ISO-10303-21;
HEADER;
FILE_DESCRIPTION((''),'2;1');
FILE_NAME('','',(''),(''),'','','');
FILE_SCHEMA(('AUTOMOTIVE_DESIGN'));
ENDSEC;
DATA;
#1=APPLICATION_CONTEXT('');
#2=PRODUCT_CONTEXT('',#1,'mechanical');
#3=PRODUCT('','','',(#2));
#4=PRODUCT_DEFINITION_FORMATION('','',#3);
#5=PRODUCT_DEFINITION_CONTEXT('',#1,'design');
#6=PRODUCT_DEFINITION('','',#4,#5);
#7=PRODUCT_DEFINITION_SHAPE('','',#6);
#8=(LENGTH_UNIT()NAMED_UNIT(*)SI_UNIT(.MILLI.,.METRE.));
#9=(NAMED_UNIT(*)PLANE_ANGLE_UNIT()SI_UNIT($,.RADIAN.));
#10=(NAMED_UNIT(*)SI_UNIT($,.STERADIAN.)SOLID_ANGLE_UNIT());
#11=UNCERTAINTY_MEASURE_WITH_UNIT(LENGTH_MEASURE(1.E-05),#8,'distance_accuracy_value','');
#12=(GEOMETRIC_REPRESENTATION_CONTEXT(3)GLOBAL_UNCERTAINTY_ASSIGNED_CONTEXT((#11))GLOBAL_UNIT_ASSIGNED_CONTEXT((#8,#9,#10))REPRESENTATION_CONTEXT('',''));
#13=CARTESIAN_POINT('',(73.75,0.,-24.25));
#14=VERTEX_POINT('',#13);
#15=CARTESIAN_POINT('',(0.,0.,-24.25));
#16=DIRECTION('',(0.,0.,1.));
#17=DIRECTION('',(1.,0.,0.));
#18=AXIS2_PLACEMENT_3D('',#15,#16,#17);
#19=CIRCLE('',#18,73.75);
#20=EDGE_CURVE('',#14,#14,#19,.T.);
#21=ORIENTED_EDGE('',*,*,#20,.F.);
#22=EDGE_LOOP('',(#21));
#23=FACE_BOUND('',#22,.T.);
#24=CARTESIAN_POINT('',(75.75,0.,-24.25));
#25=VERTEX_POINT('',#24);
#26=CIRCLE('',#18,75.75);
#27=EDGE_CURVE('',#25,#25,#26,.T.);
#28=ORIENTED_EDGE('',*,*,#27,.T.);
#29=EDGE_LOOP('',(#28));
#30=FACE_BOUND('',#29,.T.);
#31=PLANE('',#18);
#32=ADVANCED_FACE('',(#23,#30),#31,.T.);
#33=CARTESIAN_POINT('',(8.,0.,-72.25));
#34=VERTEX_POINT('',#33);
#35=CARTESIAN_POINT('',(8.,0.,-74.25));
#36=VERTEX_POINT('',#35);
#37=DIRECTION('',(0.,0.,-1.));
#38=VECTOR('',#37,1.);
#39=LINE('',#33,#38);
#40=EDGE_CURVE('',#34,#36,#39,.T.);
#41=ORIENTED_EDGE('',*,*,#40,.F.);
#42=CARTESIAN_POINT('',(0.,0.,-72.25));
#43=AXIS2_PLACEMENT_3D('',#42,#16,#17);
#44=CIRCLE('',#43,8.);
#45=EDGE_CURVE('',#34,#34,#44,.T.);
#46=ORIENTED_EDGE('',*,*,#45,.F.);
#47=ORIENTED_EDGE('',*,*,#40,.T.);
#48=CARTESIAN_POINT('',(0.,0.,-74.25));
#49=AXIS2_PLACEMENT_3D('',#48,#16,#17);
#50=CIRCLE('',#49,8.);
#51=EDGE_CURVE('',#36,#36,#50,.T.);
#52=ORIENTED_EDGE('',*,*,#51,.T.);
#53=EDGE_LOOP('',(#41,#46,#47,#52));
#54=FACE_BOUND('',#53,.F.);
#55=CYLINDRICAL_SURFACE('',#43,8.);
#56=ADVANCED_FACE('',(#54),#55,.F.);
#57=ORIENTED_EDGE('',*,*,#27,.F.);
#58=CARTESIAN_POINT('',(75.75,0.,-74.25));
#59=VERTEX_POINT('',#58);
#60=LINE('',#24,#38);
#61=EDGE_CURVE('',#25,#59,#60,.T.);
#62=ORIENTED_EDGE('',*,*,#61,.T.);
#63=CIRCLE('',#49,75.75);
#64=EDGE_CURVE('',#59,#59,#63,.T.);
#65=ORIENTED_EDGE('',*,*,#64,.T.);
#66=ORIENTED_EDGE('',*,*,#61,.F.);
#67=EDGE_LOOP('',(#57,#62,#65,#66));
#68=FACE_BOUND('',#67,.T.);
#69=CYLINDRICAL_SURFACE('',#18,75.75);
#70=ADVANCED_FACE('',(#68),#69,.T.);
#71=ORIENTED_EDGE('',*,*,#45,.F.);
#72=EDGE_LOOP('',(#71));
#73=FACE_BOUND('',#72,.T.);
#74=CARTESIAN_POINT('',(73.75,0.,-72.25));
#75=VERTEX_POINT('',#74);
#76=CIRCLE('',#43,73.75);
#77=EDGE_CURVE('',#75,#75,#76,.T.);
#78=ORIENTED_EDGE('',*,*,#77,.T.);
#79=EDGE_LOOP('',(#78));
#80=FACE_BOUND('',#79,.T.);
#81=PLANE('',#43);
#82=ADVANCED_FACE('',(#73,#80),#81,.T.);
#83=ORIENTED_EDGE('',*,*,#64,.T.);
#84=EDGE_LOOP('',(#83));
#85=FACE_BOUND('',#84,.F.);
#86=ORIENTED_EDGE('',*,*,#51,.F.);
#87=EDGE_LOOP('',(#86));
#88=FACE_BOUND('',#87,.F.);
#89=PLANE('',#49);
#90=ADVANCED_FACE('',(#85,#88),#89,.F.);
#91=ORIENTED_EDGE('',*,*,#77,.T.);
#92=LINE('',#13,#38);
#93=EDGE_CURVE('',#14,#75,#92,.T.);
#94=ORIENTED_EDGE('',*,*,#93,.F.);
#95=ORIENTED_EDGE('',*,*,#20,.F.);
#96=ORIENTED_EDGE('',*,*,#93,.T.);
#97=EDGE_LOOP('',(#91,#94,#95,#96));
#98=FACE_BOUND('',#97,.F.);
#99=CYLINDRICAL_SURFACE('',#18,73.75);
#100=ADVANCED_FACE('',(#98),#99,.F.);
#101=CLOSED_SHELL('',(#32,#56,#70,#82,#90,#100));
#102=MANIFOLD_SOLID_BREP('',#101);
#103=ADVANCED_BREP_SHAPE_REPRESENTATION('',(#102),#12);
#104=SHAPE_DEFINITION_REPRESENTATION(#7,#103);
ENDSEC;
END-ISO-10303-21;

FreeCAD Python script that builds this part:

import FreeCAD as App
import Part
import Sketcher

V = App.Vector
Q = App.Units.Quantity


def faces_at(feature, points):
    """Names of the faces that lie closest to the given points."""
    faces = feature.Shape.Faces
    near = lambda p: min(range(len(faces)), key=lambda i: faces[i].distToShape(Part.Vertex(*p))[0])
    return sorted({f"Face{near(p) + 1}" for p in points})

doc = App.newDocument("Part")
body = doc.addObject("PartDesign::Body", "Body")

# Sketch on XY plane
sketch1 = body.newObject("Sketcher::SketchObject", "Sketch")
sketch1.AttachmentSupport = (doc.getObject("XY_Plane"), [""])
sketch1.MapMode = "FlatFace"
sketch1.AttachmentOffset = App.Placement(V(0, 0, -30), App.Rotation())
sketch1.addGeometry(Part.Circle(V(0, 0, 0), V(0, 0, 1), 76), False)
sketch1.addConstraint([
    Sketcher.Constraint("Coincident", 0, 3, -1, 1),
    Sketcher.Constraint("Diameter", 0, Q("151.5 mm")),
])
pad1 = body.newObject("PartDesign::Pad", "Pad")
pad1.Profile = sketch1
pad1.Length = 50
pad1.Reversed = True
doc.recompute()

thickness = body.newObject("PartDesign::Thickness", "Thickness")
thickness.Base = (pad1, faces_at(pad1, [(0, 0, -30)]))
thickness.Value = 2
thickness.Reversed = True
thickness.Join = "Arc"

# Sketch on XY plane
sketch2 = body.newObject("Sketcher::SketchObject", "Sketch001")
sketch2.AttachmentSupport = (doc.getObject("XY_Plane"), [""])
sketch2.MapMode = "FlatFace"
sketch2.AttachmentOffset = App.Placement(V(0, 0, -78), App.Rotation())
sketch2.addGeometry(Part.Circle(V(0, 0, 0), V(0, 0, 1), 8), False)
sketch2.addConstraint([
    Sketcher.Constraint("Coincident", 0, 3, -1, 1),
    Sketcher.Constraint("Diameter", 0, Q("16 mm")),
])
pocket1 = body.newObject("PartDesign::Pocket", "Pocket")
pocket1.Profile = sketch2
pocket1.Type = "ThroughAll"
body2 = doc.addObject("PartDesign::Body", "Body001")
doc.recompute()

body.Placement = App.Placement(V(0, 0, 5.75), App.Rotation(V(0, 0, 1), 0))
boolean = body2.newObject("PartDesign::Boolean", "Boolean")
boolean.Type = "Fuse"
boolean.addObjects([body])

doc.recompute()
